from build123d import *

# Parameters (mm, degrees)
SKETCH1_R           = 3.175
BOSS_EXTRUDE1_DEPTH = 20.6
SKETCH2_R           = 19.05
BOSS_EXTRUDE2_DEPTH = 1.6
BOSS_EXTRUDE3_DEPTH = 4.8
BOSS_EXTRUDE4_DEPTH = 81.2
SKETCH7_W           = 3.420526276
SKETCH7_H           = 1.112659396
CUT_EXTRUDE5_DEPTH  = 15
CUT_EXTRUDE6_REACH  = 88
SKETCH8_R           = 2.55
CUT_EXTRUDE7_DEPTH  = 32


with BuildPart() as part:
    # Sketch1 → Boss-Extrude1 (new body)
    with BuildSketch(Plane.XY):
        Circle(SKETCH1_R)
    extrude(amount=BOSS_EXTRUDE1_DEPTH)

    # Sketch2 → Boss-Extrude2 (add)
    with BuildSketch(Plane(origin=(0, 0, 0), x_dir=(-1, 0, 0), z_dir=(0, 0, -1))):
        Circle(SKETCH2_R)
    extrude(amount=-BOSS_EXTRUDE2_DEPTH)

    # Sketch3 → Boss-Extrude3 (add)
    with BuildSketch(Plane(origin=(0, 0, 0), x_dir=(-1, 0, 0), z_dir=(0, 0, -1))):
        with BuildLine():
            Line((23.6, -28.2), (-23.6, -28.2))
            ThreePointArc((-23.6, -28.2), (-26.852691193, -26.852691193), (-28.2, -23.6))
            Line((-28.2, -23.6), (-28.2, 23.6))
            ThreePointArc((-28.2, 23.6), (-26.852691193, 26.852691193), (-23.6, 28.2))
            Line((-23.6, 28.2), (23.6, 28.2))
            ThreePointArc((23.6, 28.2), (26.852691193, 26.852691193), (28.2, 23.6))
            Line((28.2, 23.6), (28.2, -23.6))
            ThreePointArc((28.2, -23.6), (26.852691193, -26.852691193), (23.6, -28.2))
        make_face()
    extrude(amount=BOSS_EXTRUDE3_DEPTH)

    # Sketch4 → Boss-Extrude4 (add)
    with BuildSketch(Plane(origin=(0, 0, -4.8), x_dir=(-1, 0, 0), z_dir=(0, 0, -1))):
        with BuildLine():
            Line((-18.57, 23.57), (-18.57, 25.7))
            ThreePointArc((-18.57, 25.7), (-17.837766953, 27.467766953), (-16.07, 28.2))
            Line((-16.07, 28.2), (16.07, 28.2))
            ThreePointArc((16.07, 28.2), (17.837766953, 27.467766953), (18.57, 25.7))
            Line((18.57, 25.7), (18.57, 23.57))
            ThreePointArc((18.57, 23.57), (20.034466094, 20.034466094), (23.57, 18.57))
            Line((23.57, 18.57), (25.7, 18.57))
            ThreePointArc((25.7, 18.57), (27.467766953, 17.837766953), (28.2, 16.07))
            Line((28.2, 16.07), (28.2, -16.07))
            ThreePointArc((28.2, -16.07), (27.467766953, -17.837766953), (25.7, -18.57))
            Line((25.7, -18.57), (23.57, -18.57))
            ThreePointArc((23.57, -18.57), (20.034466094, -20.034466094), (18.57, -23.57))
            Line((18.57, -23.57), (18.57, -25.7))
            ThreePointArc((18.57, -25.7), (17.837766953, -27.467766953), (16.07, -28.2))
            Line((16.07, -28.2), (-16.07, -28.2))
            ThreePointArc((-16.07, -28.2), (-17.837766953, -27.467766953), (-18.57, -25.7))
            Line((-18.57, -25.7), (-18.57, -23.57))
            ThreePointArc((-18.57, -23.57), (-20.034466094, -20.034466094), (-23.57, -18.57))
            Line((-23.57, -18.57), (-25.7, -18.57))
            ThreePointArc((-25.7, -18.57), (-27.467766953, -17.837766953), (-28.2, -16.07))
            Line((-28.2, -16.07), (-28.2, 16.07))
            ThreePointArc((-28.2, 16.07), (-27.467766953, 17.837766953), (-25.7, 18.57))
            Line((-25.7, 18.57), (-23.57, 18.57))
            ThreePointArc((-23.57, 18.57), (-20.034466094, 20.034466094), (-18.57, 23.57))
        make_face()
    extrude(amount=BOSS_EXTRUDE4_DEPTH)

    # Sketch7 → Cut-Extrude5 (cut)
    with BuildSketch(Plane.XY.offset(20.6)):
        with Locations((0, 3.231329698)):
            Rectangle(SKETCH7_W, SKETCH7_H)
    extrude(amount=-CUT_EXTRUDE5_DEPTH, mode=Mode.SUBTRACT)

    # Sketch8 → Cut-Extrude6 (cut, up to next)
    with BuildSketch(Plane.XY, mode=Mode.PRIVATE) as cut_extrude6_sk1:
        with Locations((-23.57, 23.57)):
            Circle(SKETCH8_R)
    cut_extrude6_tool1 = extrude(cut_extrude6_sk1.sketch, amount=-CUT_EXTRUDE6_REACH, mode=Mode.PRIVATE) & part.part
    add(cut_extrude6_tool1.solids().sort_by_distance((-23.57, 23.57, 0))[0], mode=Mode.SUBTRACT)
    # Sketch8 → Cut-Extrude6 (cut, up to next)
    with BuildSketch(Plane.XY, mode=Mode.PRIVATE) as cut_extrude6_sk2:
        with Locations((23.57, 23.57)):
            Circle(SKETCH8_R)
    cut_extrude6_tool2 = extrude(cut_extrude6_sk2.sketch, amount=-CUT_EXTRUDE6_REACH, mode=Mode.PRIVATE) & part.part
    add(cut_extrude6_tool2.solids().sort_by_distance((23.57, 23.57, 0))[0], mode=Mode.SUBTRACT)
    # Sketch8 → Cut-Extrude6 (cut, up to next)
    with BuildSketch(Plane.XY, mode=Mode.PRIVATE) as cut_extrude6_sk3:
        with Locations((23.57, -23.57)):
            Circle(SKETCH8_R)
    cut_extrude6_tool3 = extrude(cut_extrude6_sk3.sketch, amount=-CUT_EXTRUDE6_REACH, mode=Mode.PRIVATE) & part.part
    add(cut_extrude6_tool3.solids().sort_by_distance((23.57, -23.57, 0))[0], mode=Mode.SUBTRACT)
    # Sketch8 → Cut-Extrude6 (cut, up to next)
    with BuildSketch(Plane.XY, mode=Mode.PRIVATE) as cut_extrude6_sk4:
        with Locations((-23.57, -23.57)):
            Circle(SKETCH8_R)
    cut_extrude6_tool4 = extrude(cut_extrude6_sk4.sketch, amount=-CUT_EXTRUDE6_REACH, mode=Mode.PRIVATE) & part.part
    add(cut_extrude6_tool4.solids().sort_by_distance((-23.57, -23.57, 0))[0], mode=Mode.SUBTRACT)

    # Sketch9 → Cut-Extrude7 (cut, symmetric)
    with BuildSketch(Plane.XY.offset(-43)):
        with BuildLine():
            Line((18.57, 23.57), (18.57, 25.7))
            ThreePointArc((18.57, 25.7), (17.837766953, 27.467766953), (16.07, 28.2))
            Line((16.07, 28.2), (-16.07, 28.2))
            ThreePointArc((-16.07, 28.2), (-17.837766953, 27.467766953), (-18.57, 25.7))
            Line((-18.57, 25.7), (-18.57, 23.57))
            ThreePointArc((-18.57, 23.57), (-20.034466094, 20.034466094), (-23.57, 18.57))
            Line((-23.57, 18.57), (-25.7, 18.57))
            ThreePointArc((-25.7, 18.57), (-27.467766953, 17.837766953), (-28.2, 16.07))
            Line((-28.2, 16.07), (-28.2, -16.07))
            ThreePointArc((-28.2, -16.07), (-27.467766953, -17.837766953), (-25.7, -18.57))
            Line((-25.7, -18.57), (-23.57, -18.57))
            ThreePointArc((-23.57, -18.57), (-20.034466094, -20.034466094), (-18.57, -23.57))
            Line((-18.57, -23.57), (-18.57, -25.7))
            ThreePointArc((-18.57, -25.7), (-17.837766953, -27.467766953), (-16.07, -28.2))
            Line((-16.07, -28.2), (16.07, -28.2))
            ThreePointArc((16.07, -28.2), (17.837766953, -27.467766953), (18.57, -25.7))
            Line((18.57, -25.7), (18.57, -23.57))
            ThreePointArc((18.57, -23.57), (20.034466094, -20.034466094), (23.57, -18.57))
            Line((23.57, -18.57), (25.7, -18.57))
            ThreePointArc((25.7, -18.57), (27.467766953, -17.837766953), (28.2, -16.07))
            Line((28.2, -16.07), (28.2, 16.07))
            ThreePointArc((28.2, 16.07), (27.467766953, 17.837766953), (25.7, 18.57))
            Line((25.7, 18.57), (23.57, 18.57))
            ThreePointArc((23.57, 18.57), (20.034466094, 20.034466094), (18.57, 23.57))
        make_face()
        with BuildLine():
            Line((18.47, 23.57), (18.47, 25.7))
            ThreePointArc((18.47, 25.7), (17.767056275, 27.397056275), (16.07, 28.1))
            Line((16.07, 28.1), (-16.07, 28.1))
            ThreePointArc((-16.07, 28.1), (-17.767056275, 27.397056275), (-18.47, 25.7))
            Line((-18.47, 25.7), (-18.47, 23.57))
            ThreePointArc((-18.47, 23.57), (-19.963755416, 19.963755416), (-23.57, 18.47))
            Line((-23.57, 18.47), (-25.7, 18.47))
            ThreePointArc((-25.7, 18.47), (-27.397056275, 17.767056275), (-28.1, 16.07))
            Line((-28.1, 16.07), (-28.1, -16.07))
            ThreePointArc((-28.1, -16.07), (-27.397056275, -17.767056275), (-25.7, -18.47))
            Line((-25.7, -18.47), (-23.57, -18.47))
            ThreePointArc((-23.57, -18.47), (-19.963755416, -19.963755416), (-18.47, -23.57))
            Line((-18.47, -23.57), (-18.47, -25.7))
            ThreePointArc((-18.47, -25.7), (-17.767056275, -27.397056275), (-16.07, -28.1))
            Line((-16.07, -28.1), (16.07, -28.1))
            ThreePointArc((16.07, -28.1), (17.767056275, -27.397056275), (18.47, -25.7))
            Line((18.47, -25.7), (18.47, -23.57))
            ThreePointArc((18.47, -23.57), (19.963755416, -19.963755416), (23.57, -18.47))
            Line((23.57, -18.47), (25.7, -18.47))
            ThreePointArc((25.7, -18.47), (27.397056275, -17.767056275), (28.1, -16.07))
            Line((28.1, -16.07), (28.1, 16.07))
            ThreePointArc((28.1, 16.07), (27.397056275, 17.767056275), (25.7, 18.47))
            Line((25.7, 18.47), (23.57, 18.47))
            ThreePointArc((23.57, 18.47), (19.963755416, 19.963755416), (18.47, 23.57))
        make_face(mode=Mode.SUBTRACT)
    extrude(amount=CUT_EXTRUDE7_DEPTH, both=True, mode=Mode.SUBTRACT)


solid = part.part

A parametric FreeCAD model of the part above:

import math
import FreeCAD as App
import Part
import Sketcher

V = App.Vector

doc = App.newDocument("Part")
body = doc.addObject("PartDesign::Body", "Body")

sketch1 = doc.addObject("Sketcher::SketchObject", "Sketch")
body.addObject(sketch1)
sketch1.AttachmentSupport = (doc.XY_Plane, [""])
sketch1.MapMode = "FlatFace"
sketch1.addGeometry(Part.Circle(V(0, 0, 0), V(0, 0, 1), 3.175), False)
sketch1.addConstraint(Sketcher.Constraint("Coincident", 0, 3, -1, 1))
sketch1.addConstraint(Sketcher.Constraint("Diameter", 0, 6.35))
pad1 = doc.addObject("PartDesign::Pad", "Pad")
body.addObject(pad1)
pad1.Profile = sketch1
pad1.Length = 20.6

sketch2 = doc.addObject("Sketcher::SketchObject", "Sketch001")
body.addObject(sketch2)
sketch2.AttachmentSupport = (doc.XY_Plane, [""])
sketch2.MapMode = "FlatFace"
sketch2.addGeometry(Part.Circle(V(0, 0, 0), V(0, 0, 1), 19.05), False)
sketch2.addConstraint(Sketcher.Constraint("Coincident", 0, 3, -1, 1))
sketch2.addConstraint(Sketcher.Constraint("Diameter", 0, 38.1))
pad2 = doc.addObject("PartDesign::Pad", "Pad001")
body.addObject(pad2)
pad2.Profile = sketch2
pad2.Length = 1.6

sketch3 = doc.addObject("Sketcher::SketchObject", "Sketch002")
body.addObject(sketch3)
sketch3.AttachmentSupport = (doc.XY_Plane, [""])
sketch3.MapMode = "FlatFace"
sketch3.addGeometry(Part.LineSegment(V(23.6, -28.2, 0), V(-23.6, -28.2, 0)), False)
sketch3.addGeometry(Part.ArcOfCircle(Part.Circle(V(-23.6, -23.6, 0), V(0, 0, 1), 4.6), math.radians(-180), math.radians(-90)), False)
sketch3.addGeometry(Part.LineSegment(V(-28.2, -23.6, 0), V(-28.2, 23.6, 0)), False)
sketch3.addGeometry(Part.ArcOfCircle(Part.Circle(V(-23.6, 23.6, 0), V(0, 0, 1), 4.6), math.radians(90), math.radians(180)), False)
sketch3.addGeometry(Part.LineSegment(V(-23.6, 28.2, 0), V(23.6, 28.2, 0)), False)
sketch3.addGeometry(Part.ArcOfCircle(Part.Circle(V(23.6, 23.6, 0), V(0, 0, 1), 4.6), math.radians(0), math.radians(90)), False)
sketch3.addGeometry(Part.LineSegment(V(28.2, 23.6, 0), V(28.2, -23.6, 0)), False)
sketch3.addGeometry(Part.ArcOfCircle(Part.Circle(V(23.6, -23.6, 0), V(0, 0, 1), 4.6), math.radians(-90), math.radians(0)), False)
sketch3.addConstraint(Sketcher.Constraint("Tangent", 0, 2, 1, 2))
sketch3.addConstraint(Sketcher.Constraint("Tangent", 1, 1, 2, 1))
sketch3.addConstraint(Sketcher.Constraint("Tangent", 2, 2, 3, 2))
sketch3.addConstraint(Sketcher.Constraint("Tangent", 3, 1, 4, 1))
sketch3.addConstraint(Sketcher.Constraint("Tangent", 4, 2, 5, 2))
sketch3.addConstraint(Sketcher.Constraint("Tangent", 5, 1, 6, 1))
sketch3.addConstraint(Sketcher.Constraint("Tangent", 6, 2, 7, 2))
sketch3.addConstraint(Sketcher.Constraint("Tangent", 7, 1, 0, 1))
sketch3.addConstraint(Sketcher.Constraint("Horizontal", 0))
sketch3.addConstraint(Sketcher.Constraint("Vertical", 2))
sketch3.addConstraint(Sketcher.Constraint("Horizontal", 4))
sketch3.addConstraint(Sketcher.Constraint("Vertical", 6))
sketch3.addConstraint(Sketcher.Constraint("Equal", 1, 3))
sketch3.addConstraint(Sketcher.Constraint("Equal", 3, 5))
sketch3.addConstraint(Sketcher.Constraint("Equal", 5, 7))
sketch3.addConstraint(Sketcher.Constraint("Symmetric", 1, 3, 5, 3, -1, 1))
sketch3.addConstraint(Sketcher.Constraint("Equal", 4, 2))
sketch3.addConstraint(Sketcher.Constraint("Radius", 1, 4.6))
sketch3.addConstraint(Sketcher.Constraint("DistanceX", 0, 2, 0, 1, 47.2))
pad3 = doc.addObject("PartDesign::Pad", "Pad002")
body.addObject(pad3)
pad3.Profile = sketch3
pad3.Length = 4.8
pad3.Reversed = True

sketch4 = doc.addObject("Sketcher::SketchObject", "Sketch003")
body.addObject(sketch4)
sketch4.AttachmentSupport = (doc.XY_Plane, [""])
sketch4.MapMode = "FlatFace"
sketch4.AttachmentOffset = App.Placement(V(0, 0, -4.8), App.Rotation())
sketch4.addGeometry(Part.LineSegment(V(18.57, 25.7, 0), V(18.57, 23.57, 0)), False)
sketch4.addGeometry(Part.ArcOfCircle(Part.Circle(V(23.57, 23.57, 0), V(0, 0, 1), 5), math.radians(180), math.radians(270)), False)
sketch4.addGeometry(Part.LineSegment(V(23.57, 18.57, 0), V(25.7, 18.57, 0)), False)
sketch4.addGeometry(Part.ArcOfCircle(Part.Circle(V(25.7, 16.07, 0), V(0, 0, 1), 2.5), math.radians(0), math.radians(90)), False)
sketch4.addGeometry(Part.LineSegment(V(28.2, 16.07, 0), V(28.2, -16.07, 0)), False)
sketch4.addGeometry(Part.ArcOfCircle(Part.Circle(V(25.7, -16.07, 0), V(0, 0, 1), 2.5), math.radians(-90), math.radians(0)), False)
sketch4.addGeometry(Part.LineSegment(V(25.7, -18.57, 0), V(23.57, -18.57, 0)), False)
sketch4.addGeometry(Part.ArcOfCircle(Part.Circle(V(23.57, -23.57, 0), V(0, 0, 1), 5), math.radians(90), math.radians(180)), False)
sketch4.addGeometry(Part.LineSegment(V(18.57, -23.57, 0), V(18.57, -25.7, 0)), False)
sketch4.addGeometry(Part.ArcOfCircle(Part.Circle(V(16.07, -25.7, 0), V(0, 0, 1), 2.5), math.radians(-90), math.radians(0)), False)
sketch4.addGeometry(Part.LineSegment(V(16.07, -28.2, 0), V(-16.07, -28.2, 0)), False)
sketch4.addGeometry(Part.ArcOfCircle(Part.Circle(V(-16.07, -25.7, 0), V(0, 0, 1), 2.5), math.radians(180), math.radians(270)), False)
sketch4.addGeometry(Part.LineSegment(V(-18.57, -25.7, 0), V(-18.57, -23.57, 0)), False)
sketch4.addGeometry(Part.ArcOfCircle(Part.Circle(V(-23.57, -23.57, 0), V(0, 0, 1), 5), math.radians(0), math.radians(90)), False)
sketch4.addGeometry(Part.LineSegment(V(-23.57, -18.57, 0), V(-25.7, -18.57, 0)), False)
sketch4.addGeometry(Part.ArcOfCircle(Part.Circle(V(-25.7, -16.07, 0), V(0, 0, 1), 2.5), math.radians(180), math.radians(270)), False)
sketch4.addGeometry(Part.LineSegment(V(-28.2, -16.07, 0), V(-28.2, 16.07, 0)), False)
sketch4.addGeometry(Part.ArcOfCircle(Part.Circle(V(-25.7, 16.07, 0), V(0, 0, 1), 2.5), math.radians(90), math.radians(180)), False)
sketch4.addGeometry(Part.LineSegment(V(-25.7, 18.57, 0), V(-23.57, 18.57, 0)), False)
sketch4.addGeometry(Part.ArcOfCircle(Part.Circle(V(-23.57, 23.57, 0), V(0, 0, 1), 5), math.radians(-90), math.radians(0)), False)
sketch4.addGeometry(Part.LineSegment(V(-18.57, 23.57, 0), V(-18.57, 25.7, 0)), False)
sketch4.addGeometry(Part.ArcOfCircle(Part.Circle(V(-16.07, 25.7, 0), V(0, 0, 1), 2.5), math.radians(90), math.radians(180)), False)
sketch4.addGeometry(Part.LineSegment(V(-16.07, 28.2, 0), V(16.07, 28.2, 0)), False)
sketch4.addGeometry(Part.ArcOfCircle(Part.Circle(V(16.07, 25.7, 0), V(0, 0, 1), 2.5), math.radians(0), math.radians(90)), False)
sketch4.addConstraint(Sketcher.Constraint("Tangent", 0, 2, 1, 1))
sketch4.addConstraint(Sketcher.Constraint("Tangent", 1, 2, 2, 1))
sketch4.addConstraint(Sketcher.Constraint("Tangent", 2, 2, 3, 2))
sketch4.addConstraint(Sketcher.Constraint("Tangent", 3, 1, 4, 1))
sketch4.addConstraint(Sketcher.Constraint("Tangent", 4, 2, 5, 2))
sketch4.addConstraint(Sketcher.Constraint("Tangent", 5, 1, 6, 1))
sketch4.addConstraint(Sketcher.Constraint("Tangent", 6, 2, 7, 1))
sketch4.addConstraint(Sketcher.Constraint("Tangent", 7, 2, 8, 1))
sketch4.addConstraint(Sketcher.Constraint("Tangent", 8, 2, 9, 2))
sketch4.addConstraint(Sketcher.Constraint("Tangent", 9, 1, 10, 1))
sketch4.addConstraint(Sketcher.Constraint("Tangent", 10, 2, 11, 2))
sketch4.addConstraint(Sketcher.Constraint("Tangent", 11, 1, 12, 1))
sketch4.addConstraint(Sketcher.Constraint("Tangent", 12, 2, 13, 1))
sketch4.addConstraint(Sketcher.Constraint("Tangent", 13, 2, 14, 1))
sketch4.addConstraint(Sketcher.Constraint("Tangent", 14, 2, 15, 2))
sketch4.addConstraint(Sketcher.Constraint("Tangent", 15, 1, 16, 1))
sketch4.addConstraint(Sketcher.Constraint("Tangent", 16, 2, 17, 2))
sketch4.addConstraint(Sketcher.Constraint("Tangent", 17, 1, 18, 1))
sketch4.addConstraint(Sketcher.Constraint("Tangent", 18, 2, 19, 1))
sketch4.addConstraint(Sketcher.Constraint("Tangent", 19, 2, 20, 1))
sketch4.addConstraint(Sketcher.Constraint("Tangent", 20, 2, 21, 2))
sketch4.addConstraint(Sketcher.Constraint("Tangent", 21, 1, 22, 1))
sketch4.addConstraint(Sketcher.Constraint("Tangent", 22, 2, 23, 2))
sketch4.addConstraint(Sketcher.Constraint("Tangent", 23, 1, 0, 1))
sketch4.addConstraint(Sketcher.Constraint("Vertical", 0))
sketch4.addConstraint(Sketcher.Constraint("Horizontal", 2))
sketch4.addConstraint(Sketcher.Constraint("Vertical", 4))
sketch4.addConstraint(Sketcher.Constraint("Horizontal", 6))
sketch4.addConstraint(Sketcher.Constraint("Vertical", 8))
sketch4.addConstraint(Sketcher.Constraint("Horizontal", 10))
sketch4.addConstraint(Sketcher.Constraint("Vertical", 12))
sketch4.addConstraint(Sketcher.Constraint("Horizontal", 14))
sketch4.addConstraint(Sketcher.Constraint("Vertical", 16))
sketch4.addConstraint(Sketcher.Constraint("Horizontal", 18))
sketch4.addConstraint(Sketcher.Constraint("Vertical", 20))
sketch4.addConstraint(Sketcher.Constraint("Horizontal", 22))
sketch4.addConstraint(Sketcher.Constraint("Equal", 3, 5))
sketch4.addConstraint(Sketcher.Constraint("Equal", 1, 7))
sketch4.addConstraint(Sketcher.Constraint("Equal", 5, 9))
sketch4.addConstraint(Sketcher.Constraint("Equal", 9, 11))
sketch4.addConstraint(Sketcher.Constraint("Equal", 7, 13))
sketch4.addConstraint(Sketcher.Constraint("Equal", 11, 15))
sketch4.addConstraint(Sketcher.Constraint("Equal", 15, 17))
sketch4.addConstraint(Sketcher.Constraint("Equal", 13, 19))
sketch4.addConstraint(Sketcher.Constraint("Equal", 17, 21))
sketch4.addConstraint(Sketcher.Constraint("Equal", 21, 23))
sketch4.addConstraint(Sketcher.Constraint("Symmetric", 1, 3, 13, 3, -1, 1))
sketch4.addConstraint(Sketcher.Constraint("Symmetric", 5, 3, 17, 3, -1, 1))
sketch4.addConstraint(Sketcher.Constraint("Symmetric", 9, 3, 21, 3, -1, 1))
sketch4.addConstraint(Sketcher.Constraint("Symmetric", 7, 3, 13, 3, -2))
sketch4.addConstraint(Sketcher.Constraint("Equal", 18, 0))
sketch4.addConstraint(Sketcher.Constraint("Equal", 22, 4))
sketch4.addConstraint(Sketcher.Constraint("Radius", 1, 5.0))
sketch4.addConstraint(Sketcher.Constraint("Radius", 3, 2.5))
sketch4.addConstraint(Sketcher.Constraint("DistanceX", 2, 1, 2, 2, 2.13))
sketch4.addConstraint(Sketcher.Constraint("DistanceX", 10, 2, 10, 1, 32.14))
pad4 = doc.addObject("PartDesign::Pad", "Pad003")
body.addObject(pad4)
pad4.Profile = sketch4
pad4.Length = 81.2
pad4.Reversed = True

sketch5 = doc.addObject("Sketcher::SketchObject", "Sketch004")
body.addObject(sketch5)
sketch5.AttachmentSupport = (doc.XY_Plane, [""])
sketch5.MapMode = "FlatFace"
sketch5.AttachmentOffset = App.Placement(V(0, 0, 20.6), App.Rotation())
sketch5.addGeometry(Part.LineSegment(V(-1.710263, 3.787659, 0), V(-1.710263, 2.675, 0)), False)
sketch5.addGeometry(Part.LineSegment(V(-1.710263, 2.675, 0), V(1.710263, 2.675, 0)), False)
sketch5.addGeometry(Part.LineSegment(V(1.710263, 2.675, 0), V(1.710263, 3.787659, 0)), False)
sketch5.addGeometry(Part.LineSegment(V(1.710263, 3.787659, 0), V(-1.710263, 3.787659, 0)), False)
sketch5.addConstraint(Sketcher.Constraint("Coincident", 0, 2, 1, 1))
sketch5.addConstraint(Sketcher.Constraint("Coincident", 1, 2, 2, 1))
sketch5.addConstraint(Sketcher.Constraint("Coincident", 2, 2, 3, 1))
sketch5.addConstraint(Sketcher.Constraint("Coincident", 3, 2, 0, 1))
sketch5.addConstraint(Sketcher.Constraint("Vertical", 0))
sketch5.addConstraint(Sketcher.Constraint("Horizontal", 1))
sketch5.addConstraint(Sketcher.Constraint("Vertical", 2))
sketch5.addConstraint(Sketcher.Constraint("Horizontal", 3))
sketch5.addConstraint(Sketcher.Constraint("DistanceY", -1, 1, 0, 2, 2.675))
sketch5.addConstraint(Sketcher.Constraint("DistanceY", 0, 2, 0, 1, 1.112659))
sketch5.addConstraint(Sketcher.Constraint("DistanceX", 1, 1, 1, 2, 3.420526))
sketch5.addConstraint(Sketcher.Constraint("DistanceX", 0, 2, -1, 1, 1.710263))
pocket1 = doc.addObject("PartDesign::Pocket", "Pocket")
body.addObject(pocket1)
pocket1.Profile = sketch5
pocket1.Length = 15

sketch6 = doc.addObject("Sketcher::SketchObject", "Sketch005")
body.addObject(sketch6)
sketch6.AttachmentSupport = (doc.XY_Plane, [""])
sketch6.MapMode = "FlatFace"
sketch6.addGeometry(Part.Circle(V(-23.57, 23.57, 0), V(0, 0, 1), 2.55), False)
sketch6.addConstraint(Sketcher.Constraint("Diameter", 0, 5.1))
sketch6.addConstraint(Sketcher.Constraint("DistanceX", 0, 3, -1, 1, 23.57))
sketch6.addConstraint(Sketcher.Constraint("DistanceY", -1, 1, 0, 3, 23.57))
pocket2 = doc.addObject("PartDesign::Pocket", "Pocket001")
body.addObject(pocket2)
pocket2.Profile = sketch6
pocket2.Type = "UpToFirst"

sketch7 = doc.addObject("Sketcher::SketchObject", "Sketch006")
body.addObject(sketch7)
sketch7.AttachmentSupport = (doc.XY_Plane, [""])
sketch7.MapMode = "FlatFace"
sketch7.addGeometry(Part.Circle(V(23.57, 23.57, 0), V(0, 0, 1), 2.55), False)
sketch7.addConstraint(Sketcher.Constraint("Diameter", 0, 5.1))
sketch7.addConstraint(Sketcher.Constraint("DistanceX", -1, 1, 0, 3, 23.57))
sketch7.addConstraint(Sketcher.Constraint("DistanceY", -1, 1, 0, 3, 23.57))
pocket3 = doc.addObject("PartDesign::Pocket", "Pocket002")
body.addObject(pocket3)
pocket3.Profile = sketch7
pocket3.Type = "UpToFirst"

sketch8 = doc.addObject("Sketcher::SketchObject", "Sketch007")
body.addObject(sketch8)
sketch8.AttachmentSupport = (doc.XY_Plane, [""])
sketch8.MapMode = "FlatFace"
sketch8.addGeometry(Part.Circle(V(23.57, -23.57, 0), V(0, 0, 1), 2.55), False)
sketch8.addConstraint(Sketcher.Constraint("Diameter", 0, 5.1))
sketch8.addConstraint(Sketcher.Constraint("DistanceX", -1, 1, 0, 3, 23.57))
sketch8.addConstraint(Sketcher.Constraint("DistanceY", 0, 3, -1, 1, 23.57))
pocket4 = doc.addObject("PartDesign::Pocket", "Pocket003")
body.addObject(pocket4)
pocket4.Profile = sketch8
pocket4.Type = "UpToFirst"

sketch9 = doc.addObject("Sketcher::SketchObject", "Sketch008")
body.addObject(sketch9)
sketch9.AttachmentSupport = (doc.XY_Plane, [""])
sketch9.MapMode = "FlatFace"
sketch9.addGeometry(Part.Circle(V(-23.57, -23.57, 0), V(0, 0, 1), 2.55), False)
sketch9.addConstraint(Sketcher.Constraint("Diameter", 0, 5.1))
sketch9.addConstraint(Sketcher.Constraint("DistanceX", 0, 3, -1, 1, 23.57))
sketch9.addConstraint(Sketcher.Constraint("DistanceY", 0, 3, -1, 1, 23.57))
pocket5 = doc.addObject("PartDesign::Pocket", "Pocket004")
body.addObject(pocket5)
pocket5.Profile = sketch9
pocket5.Type = "UpToFirst"

sketch10 = doc.addObject("Sketcher::SketchObject", "Sketch009")
body.addObject(sketch10)
sketch10.AttachmentSupport = (doc.XY_Plane, [""])
sketch10.MapMode = "FlatFace"
sketch10.AttachmentOffset = App.Placement(V(0, 0, -43), App.Rotation())
sketch10.addGeometry(Part.LineSegment(V(18.57, 23.57, 0), V(18.57, 25.7, 0)), False)
sketch10.addGeometry(Part.ArcOfCircle(Part.Circle(V(16.07, 25.7, 0), V(0, 0, 1), 2.5), math.radians(0), math.radians(90)), False)
sketch10.addGeometry(Part.LineSegment(V(16.07, 28.2, 0), V(-16.07, 28.2, 0)), False)
sketch10.addGeometry(Part.ArcOfCircle(Part.Circle(V(-16.07, 25.7, 0), V(0, 0, 1), 2.5), math.radians(90), math.radians(180)), False)
sketch10.addGeometry(Part.LineSegment(V(-18.57, 25.7, 0), V(-18.57, 23.57, 0)), False)
sketch10.addGeometry(Part.ArcOfCircle(Part.Circle(V(-23.57, 23.57, 0), V(0, 0, 1), 5), math.radians(-90), math.radians(0)), False)
sketch10.addGeometry(Part.LineSegment(V(-23.57, 18.57, 0), V(-25.7, 18.57, 0)), False)
sketch10.addGeometry(Part.ArcOfCircle(Part.Circle(V(-25.7, 16.07, 0), V(0, 0, 1), 2.5), math.radians(90), math.radians(180)), False)
sketch10.addGeometry(Part.LineSegment(V(-28.2, 16.07, 0), V(-28.2, -16.07, 0)), False)
sketch10.addGeometry(Part.ArcOfCircle(Part.Circle(V(-25.7, -16.07, 0), V(0, 0, 1), 2.5), math.radians(180), math.radians(270)), False)
sketch10.addGeometry(Part.LineSegment(V(-25.7, -18.57, 0), V(-23.57, -18.57, 0)), False)
sketch10.addGeometry(Part.ArcOfCircle(Part.Circle(V(-23.57, -23.57, 0), V(0, 0, 1), 5), math.radians(0), math.radians(90)), False)
sketch10.addGeometry(Part.LineSegment(V(-18.57, -23.57, 0), V(-18.57, -25.7, 0)), False)
sketch10.addGeometry(Part.ArcOfCircle(Part.Circle(V(-16.07, -25.7, 0), V(0, 0, 1), 2.5), math.radians(180), math.radians(270)), False)
sketch10.addGeometry(Part.LineSegment(V(-16.07, -28.2, 0), V(16.07, -28.2, 0)), False)
sketch10.addGeometry(Part.ArcOfCircle(Part.Circle(V(16.07, -25.7, 0), V(0, 0, 1), 2.5), math.radians(-90), math.radians(0)), False)
sketch10.addGeometry(Part.LineSegment(V(18.57, -25.7, 0), V(18.57, -23.57, 0)), False)
sketch10.addGeometry(Part.ArcOfCircle(Part.Circle(V(23.57, -23.57, 0), V(0, 0, 1), 5), math.radians(90), math.radians(180)), False)
sketch10.addGeometry(Part.LineSegment(V(23.57, -18.57, 0), V(25.7, -18.57, 0)), False)
sketch10.addGeometry(Part.ArcOfCircle(Part.Circle(V(25.7, -16.07, 0), V(0, 0, 1), 2.5), math.radians(-90), math.radians(0)), False)
sketch10.addGeometry(Part.LineSegment(V(28.2, -16.07, 0), V(28.2, 16.07, 0)), False)
sketch10.addGeometry(Part.ArcOfCircle(Part.Circle(V(25.7, 16.07, 0), V(0, 0, 1), 2.5), math.radians(0), math.radians(90)), False)
sketch10.addGeometry(Part.LineSegment(V(25.7, 18.57, 0), V(23.57, 18.57, 0)), False)
sketch10.addGeometry(Part.ArcOfCircle(Part.Circle(V(23.57, 23.57, 0), V(0, 0, 1), 5), math.radians(180), math.radians(270)), False)
sketch10.addGeometry(Part.LineSegment(V(18.47, 25.7, 0), V(18.47, 23.57, 0)), False)
sketch10.addGeometry(Part.ArcOfCircle(Part.Circle(V(23.57, 23.57, 0), V(0, 0, 1), 5.1), math.radians(180), math.radians(270)), False)
sketch10.addGeometry(Part.LineSegment(V(23.57, 18.47, 0), V(25.7, 18.47, 0)), False)
sketch10.addGeometry(Part.ArcOfCircle(Part.Circle(V(25.7, 16.07, 0), V(0, 0, 1), 2.4), math.radians(0), math.radians(90)), False)
sketch10.addGeometry(Part.LineSegment(V(28.1, 16.07, 0), V(28.1, -16.07, 0)), False)
sketch10.addGeometry(Part.ArcOfCircle(Part.Circle(V(25.7, -16.07, 0), V(0, 0, 1), 2.4), math.radians(-90), math.radians(0)), False)
sketch10.addGeometry(Part.LineSegment(V(25.7, -18.47, 0), V(23.57, -18.47, 0)), False)
sketch10.addGeometry(Part.ArcOfCircle(Part.Circle(V(23.57, -23.57, 0), V(0, 0, 1), 5.1), math.radians(90), math.radians(180)), False)
sketch10.addGeometry(Part.LineSegment(V(18.47, -23.57, 0), V(18.47, -25.7, 0)), False)
sketch10.addGeometry(Part.ArcOfCircle(Part.Circle(V(16.07, -25.7, 0), V(0, 0, 1), 2.4), math.radians(-90), math.radians(0)), False)
sketch10.addGeometry(Part.LineSegment(V(16.07, -28.1, 0), V(-16.07, -28.1, 0)), False)
sketch10.addGeometry(Part.ArcOfCircle(Part.Circle(V(-16.07, -25.7, 0), V(0, 0, 1), 2.4), math.radians(180), math.radians(270)), False)
sketch10.addGeometry(Part.LineSegment(V(-18.47, -25.7, 0), V(-18.47, -23.57, 0)), False)
sketch10.addGeometry(Part.ArcOfCircle(Part.Circle(V(-23.57, -23.57, 0), V(0, 0, 1), 5.1), math.radians(0), math.radians(90)), False)
sketch10.addGeometry(Part.LineSegment(V(-23.57, -18.47, 0), V(-25.7, -18.47, 0)), False)
sketch10.addGeometry(Part.ArcOfCircle(Part.Circle(V(-25.7, -16.07, 0), V(0, 0, 1), 2.4), math.radians(180), math.radians(270)), False)
sketch10.addGeometry(Part.LineSegment(V(-28.1, -16.07, 0), V(-28.1, 16.07, 0)), False)
sketch10.addGeometry(Part.ArcOfCircle(Part.Circle(V(-25.7, 16.07, 0), V(0, 0, 1), 2.4), math.radians(90), math.radians(180)), False)
sketch10.addGeometry(Part.LineSegment(V(-25.7, 18.47, 0), V(-23.57, 18.47, 0)), False)
sketch10.addGeometry(Part.ArcOfCircle(Part.Circle(V(-23.57, 23.57, 0), V(0, 0, 1), 5.1), math.radians(-90), math.radians(0)), False)
sketch10.addGeometry(Part.LineSegment(V(-18.47, 23.57, 0), V(-18.47, 25.7, 0)), False)
sketch10.addGeometry(Part.ArcOfCircle(Part.Circle(V(-16.07, 25.7, 0), V(0, 0, 1), 2.4), math.radians(90), math.radians(180)), False)
sketch10.addGeometry(Part.LineSegment(V(-16.07, 28.1, 0), V(16.07, 28.1, 0)), False)
sketch10.addGeometry(Part.ArcOfCircle(Part.Circle(V(16.07, 25.7, 0), V(0, 0, 1), 2.4), math.radians(0), math.radians(90)), False)
sketch10.addConstraint(Sketcher.Constraint("Tangent", 0, 2, 1, 1))
sketch10.addConstraint(Sketcher.Constraint("Tangent", 1, 2, 2, 1))
sketch10.addConstraint(Sketcher.Constraint("Tangent", 2, 2, 3, 1))
sketch10.addConstraint(Sketcher.Constraint("Tangent", 3, 2, 4, 1))
sketch10.addConstraint(Sketcher.Constraint("Tangent", 4, 2, 5, 2))
sketch10.addConstraint(Sketcher.Constraint("Tangent", 5, 1, 6, 1))
sketch10.addConstraint(Sketcher.Constraint("Tangent", 6, 2, 7, 1))
sketch10.addConstraint(Sketcher.Constraint("Tangent", 7, 2, 8, 1))
sketch10.addConstraint(Sketcher.Constraint("Tangent", 8, 2, 9, 1))
sketch10.addConstraint(Sketcher.Constraint("Tangent", 9, 2, 10, 1))
sketch10.addConstraint(Sketcher.Constraint("Tangent", 10, 2, 11, 2))
sketch10.addConstraint(Sketcher.Constraint("Tangent", 11, 1, 12, 1))
sketch10.addConstraint(Sketcher.Constraint("Tangent", 12, 2, 13, 1))
sketch10.addConstraint(Sketcher.Constraint("Tangent", 13, 2, 14, 1))
sketch10.addConstraint(Sketcher.Constraint("Tangent", 14, 2, 15, 1))
sketch10.addConstraint(Sketcher.Constraint("Tangent", 15, 2, 16, 1))
sketch10.addConstraint(Sketcher.Constraint("Tangent", 16, 2, 17, 2))
sketch10.addConstraint(Sketcher.Constraint("Tangent", 17, 1, 18, 1))
sketch10.addConstraint(Sketcher.Constraint("Tangent", 18, 2, 19, 1))
sketch10.addConstraint(Sketcher.Constraint("Tangent", 19, 2, 20, 1))
sketch10.addConstraint(Sketcher.Constraint("Tangent", 20, 2, 21, 1))
sketch10.addConstraint(Sketcher.Constraint("Tangent", 21, 2, 22, 1))
sketch10.addConstraint(Sketcher.Constraint("Tangent", 22, 2, 23, 2))
sketch10.addConstraint(Sketcher.Constraint("Tangent", 23, 1, 0, 1))
sketch10.addConstraint(Sketcher.Constraint("Tangent", 24, 2, 25, 1))
sketch10.addConstraint(Sketcher.Constraint("Tangent", 25, 2, 26, 1))
sketch10.addConstraint(Sketcher.Constraint("Tangent", 26, 2, 27, 2))
sketch10.addConstraint(Sketcher.Constraint("Tangent", 27, 1, 28, 1))
sketch10.addConstraint(Sketcher.Constraint("Tangent", 28, 2, 29, 2))
sketch10.addConstraint(Sketcher.Constraint("Tangent", 29, 1, 30, 1))
sketch10.addConstraint(Sketcher.Constraint("Tangent", 30, 2, 31, 1))
sketch10.addConstraint(Sketcher.Constraint("Tangent", 31, 2, 32, 1))
sketch10.addConstraint(Sketcher.Constraint("Tangent", 32, 2, 33, 2))
sketch10.addConstraint(Sketcher.Constraint("Tangent", 33, 1, 34, 1))
sketch10.addConstraint(Sketcher.Constraint("Tangent", 34, 2, 35, 2))
sketch10.addConstraint(Sketcher.Constraint("Tangent", 35, 1, 36, 1))
sketch10.addConstraint(Sketcher.Constraint("Tangent", 36, 2, 37, 1))
sketch10.addConstraint(Sketcher.Constraint("Tangent", 37, 2, 38, 1))
sketch10.addConstraint(Sketcher.Constraint("Tangent", 38, 2, 39, 2))
sketch10.addConstraint(Sketcher.Constraint("Tangent", 39, 1, 40, 1))
sketch10.addConstraint(Sketcher.Constraint("Tangent", 40, 2, 41, 2))
sketch10.addConstraint(Sketcher.Constraint("Tangent", 41, 1, 42, 1))
sketch10.addConstraint(Sketcher.Constraint("Tangent", 42, 2, 43, 1))
sketch10.addConstraint(Sketcher.Constraint("Tangent", 43, 2, 44, 1))
sketch10.addConstraint(Sketcher.Constraint("Tangent", 44, 2, 45, 2))
sketch10.addConstraint(Sketcher.Constraint("Tangent", 45, 1, 46, 1))
sketch10.addConstraint(Sketcher.Constraint("Tangent", 46, 2, 47, 2))
sketch10.addConstraint(Sketcher.Constraint("Tangent", 47, 1, 24, 1))
sketch10.addConstraint(Sketcher.Constraint("Vertical", 0))
sketch10.addConstraint(Sketcher.Constraint("Horizontal", 2))
sketch10.addConstraint(Sketcher.Constraint("Vertical", 4))
sketch10.addConstraint(Sketcher.Constraint("Horizontal", 6))
sketch10.addConstraint(Sketcher.Constraint("Vertical", 8))
sketch10.addConstraint(Sketcher.Constraint("Horizontal", 10))
sketch10.addConstraint(Sketcher.Constraint("Vertical", 12))
sketch10.addConstraint(Sketcher.Constraint("Horizontal", 14))
sketch10.addConstraint(Sketcher.Constraint("Vertical", 16))
sketch10.addConstraint(Sketcher.Constraint("Horizontal", 18))
sketch10.addConstraint(Sketcher.Constraint("Vertical", 20))
sketch10.addConstraint(Sketcher.Constraint("Horizontal", 22))
sketch10.addConstraint(Sketcher.Constraint("Vertical", 24))
sketch10.addConstraint(Sketcher.Constraint("Horizontal", 26))
sketch10.addConstraint(Sketcher.Constraint("Vertical", 28))
sketch10.addConstraint(Sketcher.Constraint("Horizontal", 30))
sketch10.addConstraint(Sketcher.Constraint("Vertical", 32))
sketch10.addConstraint(Sketcher.Constraint("Horizontal", 34))
sketch10.addConstraint(Sketcher.Constraint("Vertical", 36))
sketch10.addConstraint(Sketcher.Constraint("Horizontal", 38))
sketch10.addConstraint(Sketcher.Constraint("Vertical", 40))
sketch10.addConstraint(Sketcher.Constraint("Horizontal", 42))
sketch10.addConstraint(Sketcher.Constraint("Vertical", 44))
sketch10.addConstraint(Sketcher.Constraint("Horizontal", 46))
sketch10.addConstraint(Sketcher.Constraint("Coincident", 25, 3, 23, 3))
sketch10.addConstraint(Sketcher.Constraint("Coincident", 27, 3, 21, 3))
sketch10.addConstraint(Sketcher.Constraint("Coincident", 29, 3, 19, 3))
sketch10.addConstraint(Sketcher.Constraint("Coincident", 31, 3, 17, 3))
sketch10.addConstraint(Sketcher.Constraint("Coincident", 33, 3, 15, 3))
sketch10.addConstraint(Sketcher.Constraint("Coincident", 35, 3, 13, 3))
sketch10.addConstraint(Sketcher.Constraint("Coincident", 37, 3, 11, 3))
sketch10.addConstraint(Sketcher.Constraint("Coincident", 39, 3, 9, 3))
sketch10.addConstraint(Sketcher.Constraint("Coincident", 41, 3, 7, 3))
sketch10.addConstraint(Sketcher.Constraint("Coincident", 43, 3, 5, 3))
sketch10.addConstraint(Sketcher.Constraint("Coincident", 45, 3, 3, 3))
sketch10.addConstraint(Sketcher.Constraint("Equal", 1, 3))
sketch10.addConstraint(Sketcher.Constraint("Equal", 3, 7))
sketch10.addConstraint(Sketcher.Constraint("Equal", 7, 9))
sketch10.addConstraint(Sketcher.Constraint("Equal", 5, 11))
sketch10.addConstraint(Sketcher.Constraint("Equal", 9, 13))
sketch10.addConstraint(Sketcher.Constraint("Equal", 13, 15))
sketch10.addConstraint(Sketcher.Constraint("Equal", 11, 17))
sketch10.addConstraint(Sketcher.Constraint("Equal", 15, 19))
sketch10.addConstraint(Sketcher.Constraint("Equal", 19, 21))
sketch10.addConstraint(Sketcher.Constraint("Equal", 17, 23))
sketch10.addConstraint(Sketcher.Constraint("Equal", 45, 47))
sketch10.addConstraint(Sketcher.Constraint("Symmetric", 1, 3, 13, 3, -1, 1))
sketch10.addConstraint(Sketcher.Constraint("Symmetric", 5, 3, 17, 3, -1, 1))
sketch10.addConstraint(Sketcher.Constraint("Symmetric", 9, 3, 21, 3, -1, 1))
sketch10.addConstraint(Sketcher.Constraint("Symmetric", 11, 3, 17, 3, -2))
sketch10.addConstraint(Sketcher.Constraint("Equal", 42, 0))
sketch10.addConstraint(Sketcher.Constraint("Equal", 46, 8))
sketch10.addConstraint(Sketcher.Constraint("Radius", 5, 5.0))
sketch10.addConstraint(Sketcher.Constraint("Radius", 1, 2.5))
sketch10.addConstraint(Sketcher.Constraint("Radius", 25, 5.1))
sketch10.addConstraint(Sketcher.Constraint("DistanceX", 2, 2, 2, 1, 32.14))
sketch10.addConstraint(Sketcher.Constraint("DistanceX", 6, 2, 6, 1, 2.13))
pocket6 = doc.addObject("PartDesign::Pocket", "Pocket005")
body.addObject(pocket6)
pocket6.Profile = sketch10
pocket6.Length = 64
pocket6.Midplane = True

doc.recompute()
